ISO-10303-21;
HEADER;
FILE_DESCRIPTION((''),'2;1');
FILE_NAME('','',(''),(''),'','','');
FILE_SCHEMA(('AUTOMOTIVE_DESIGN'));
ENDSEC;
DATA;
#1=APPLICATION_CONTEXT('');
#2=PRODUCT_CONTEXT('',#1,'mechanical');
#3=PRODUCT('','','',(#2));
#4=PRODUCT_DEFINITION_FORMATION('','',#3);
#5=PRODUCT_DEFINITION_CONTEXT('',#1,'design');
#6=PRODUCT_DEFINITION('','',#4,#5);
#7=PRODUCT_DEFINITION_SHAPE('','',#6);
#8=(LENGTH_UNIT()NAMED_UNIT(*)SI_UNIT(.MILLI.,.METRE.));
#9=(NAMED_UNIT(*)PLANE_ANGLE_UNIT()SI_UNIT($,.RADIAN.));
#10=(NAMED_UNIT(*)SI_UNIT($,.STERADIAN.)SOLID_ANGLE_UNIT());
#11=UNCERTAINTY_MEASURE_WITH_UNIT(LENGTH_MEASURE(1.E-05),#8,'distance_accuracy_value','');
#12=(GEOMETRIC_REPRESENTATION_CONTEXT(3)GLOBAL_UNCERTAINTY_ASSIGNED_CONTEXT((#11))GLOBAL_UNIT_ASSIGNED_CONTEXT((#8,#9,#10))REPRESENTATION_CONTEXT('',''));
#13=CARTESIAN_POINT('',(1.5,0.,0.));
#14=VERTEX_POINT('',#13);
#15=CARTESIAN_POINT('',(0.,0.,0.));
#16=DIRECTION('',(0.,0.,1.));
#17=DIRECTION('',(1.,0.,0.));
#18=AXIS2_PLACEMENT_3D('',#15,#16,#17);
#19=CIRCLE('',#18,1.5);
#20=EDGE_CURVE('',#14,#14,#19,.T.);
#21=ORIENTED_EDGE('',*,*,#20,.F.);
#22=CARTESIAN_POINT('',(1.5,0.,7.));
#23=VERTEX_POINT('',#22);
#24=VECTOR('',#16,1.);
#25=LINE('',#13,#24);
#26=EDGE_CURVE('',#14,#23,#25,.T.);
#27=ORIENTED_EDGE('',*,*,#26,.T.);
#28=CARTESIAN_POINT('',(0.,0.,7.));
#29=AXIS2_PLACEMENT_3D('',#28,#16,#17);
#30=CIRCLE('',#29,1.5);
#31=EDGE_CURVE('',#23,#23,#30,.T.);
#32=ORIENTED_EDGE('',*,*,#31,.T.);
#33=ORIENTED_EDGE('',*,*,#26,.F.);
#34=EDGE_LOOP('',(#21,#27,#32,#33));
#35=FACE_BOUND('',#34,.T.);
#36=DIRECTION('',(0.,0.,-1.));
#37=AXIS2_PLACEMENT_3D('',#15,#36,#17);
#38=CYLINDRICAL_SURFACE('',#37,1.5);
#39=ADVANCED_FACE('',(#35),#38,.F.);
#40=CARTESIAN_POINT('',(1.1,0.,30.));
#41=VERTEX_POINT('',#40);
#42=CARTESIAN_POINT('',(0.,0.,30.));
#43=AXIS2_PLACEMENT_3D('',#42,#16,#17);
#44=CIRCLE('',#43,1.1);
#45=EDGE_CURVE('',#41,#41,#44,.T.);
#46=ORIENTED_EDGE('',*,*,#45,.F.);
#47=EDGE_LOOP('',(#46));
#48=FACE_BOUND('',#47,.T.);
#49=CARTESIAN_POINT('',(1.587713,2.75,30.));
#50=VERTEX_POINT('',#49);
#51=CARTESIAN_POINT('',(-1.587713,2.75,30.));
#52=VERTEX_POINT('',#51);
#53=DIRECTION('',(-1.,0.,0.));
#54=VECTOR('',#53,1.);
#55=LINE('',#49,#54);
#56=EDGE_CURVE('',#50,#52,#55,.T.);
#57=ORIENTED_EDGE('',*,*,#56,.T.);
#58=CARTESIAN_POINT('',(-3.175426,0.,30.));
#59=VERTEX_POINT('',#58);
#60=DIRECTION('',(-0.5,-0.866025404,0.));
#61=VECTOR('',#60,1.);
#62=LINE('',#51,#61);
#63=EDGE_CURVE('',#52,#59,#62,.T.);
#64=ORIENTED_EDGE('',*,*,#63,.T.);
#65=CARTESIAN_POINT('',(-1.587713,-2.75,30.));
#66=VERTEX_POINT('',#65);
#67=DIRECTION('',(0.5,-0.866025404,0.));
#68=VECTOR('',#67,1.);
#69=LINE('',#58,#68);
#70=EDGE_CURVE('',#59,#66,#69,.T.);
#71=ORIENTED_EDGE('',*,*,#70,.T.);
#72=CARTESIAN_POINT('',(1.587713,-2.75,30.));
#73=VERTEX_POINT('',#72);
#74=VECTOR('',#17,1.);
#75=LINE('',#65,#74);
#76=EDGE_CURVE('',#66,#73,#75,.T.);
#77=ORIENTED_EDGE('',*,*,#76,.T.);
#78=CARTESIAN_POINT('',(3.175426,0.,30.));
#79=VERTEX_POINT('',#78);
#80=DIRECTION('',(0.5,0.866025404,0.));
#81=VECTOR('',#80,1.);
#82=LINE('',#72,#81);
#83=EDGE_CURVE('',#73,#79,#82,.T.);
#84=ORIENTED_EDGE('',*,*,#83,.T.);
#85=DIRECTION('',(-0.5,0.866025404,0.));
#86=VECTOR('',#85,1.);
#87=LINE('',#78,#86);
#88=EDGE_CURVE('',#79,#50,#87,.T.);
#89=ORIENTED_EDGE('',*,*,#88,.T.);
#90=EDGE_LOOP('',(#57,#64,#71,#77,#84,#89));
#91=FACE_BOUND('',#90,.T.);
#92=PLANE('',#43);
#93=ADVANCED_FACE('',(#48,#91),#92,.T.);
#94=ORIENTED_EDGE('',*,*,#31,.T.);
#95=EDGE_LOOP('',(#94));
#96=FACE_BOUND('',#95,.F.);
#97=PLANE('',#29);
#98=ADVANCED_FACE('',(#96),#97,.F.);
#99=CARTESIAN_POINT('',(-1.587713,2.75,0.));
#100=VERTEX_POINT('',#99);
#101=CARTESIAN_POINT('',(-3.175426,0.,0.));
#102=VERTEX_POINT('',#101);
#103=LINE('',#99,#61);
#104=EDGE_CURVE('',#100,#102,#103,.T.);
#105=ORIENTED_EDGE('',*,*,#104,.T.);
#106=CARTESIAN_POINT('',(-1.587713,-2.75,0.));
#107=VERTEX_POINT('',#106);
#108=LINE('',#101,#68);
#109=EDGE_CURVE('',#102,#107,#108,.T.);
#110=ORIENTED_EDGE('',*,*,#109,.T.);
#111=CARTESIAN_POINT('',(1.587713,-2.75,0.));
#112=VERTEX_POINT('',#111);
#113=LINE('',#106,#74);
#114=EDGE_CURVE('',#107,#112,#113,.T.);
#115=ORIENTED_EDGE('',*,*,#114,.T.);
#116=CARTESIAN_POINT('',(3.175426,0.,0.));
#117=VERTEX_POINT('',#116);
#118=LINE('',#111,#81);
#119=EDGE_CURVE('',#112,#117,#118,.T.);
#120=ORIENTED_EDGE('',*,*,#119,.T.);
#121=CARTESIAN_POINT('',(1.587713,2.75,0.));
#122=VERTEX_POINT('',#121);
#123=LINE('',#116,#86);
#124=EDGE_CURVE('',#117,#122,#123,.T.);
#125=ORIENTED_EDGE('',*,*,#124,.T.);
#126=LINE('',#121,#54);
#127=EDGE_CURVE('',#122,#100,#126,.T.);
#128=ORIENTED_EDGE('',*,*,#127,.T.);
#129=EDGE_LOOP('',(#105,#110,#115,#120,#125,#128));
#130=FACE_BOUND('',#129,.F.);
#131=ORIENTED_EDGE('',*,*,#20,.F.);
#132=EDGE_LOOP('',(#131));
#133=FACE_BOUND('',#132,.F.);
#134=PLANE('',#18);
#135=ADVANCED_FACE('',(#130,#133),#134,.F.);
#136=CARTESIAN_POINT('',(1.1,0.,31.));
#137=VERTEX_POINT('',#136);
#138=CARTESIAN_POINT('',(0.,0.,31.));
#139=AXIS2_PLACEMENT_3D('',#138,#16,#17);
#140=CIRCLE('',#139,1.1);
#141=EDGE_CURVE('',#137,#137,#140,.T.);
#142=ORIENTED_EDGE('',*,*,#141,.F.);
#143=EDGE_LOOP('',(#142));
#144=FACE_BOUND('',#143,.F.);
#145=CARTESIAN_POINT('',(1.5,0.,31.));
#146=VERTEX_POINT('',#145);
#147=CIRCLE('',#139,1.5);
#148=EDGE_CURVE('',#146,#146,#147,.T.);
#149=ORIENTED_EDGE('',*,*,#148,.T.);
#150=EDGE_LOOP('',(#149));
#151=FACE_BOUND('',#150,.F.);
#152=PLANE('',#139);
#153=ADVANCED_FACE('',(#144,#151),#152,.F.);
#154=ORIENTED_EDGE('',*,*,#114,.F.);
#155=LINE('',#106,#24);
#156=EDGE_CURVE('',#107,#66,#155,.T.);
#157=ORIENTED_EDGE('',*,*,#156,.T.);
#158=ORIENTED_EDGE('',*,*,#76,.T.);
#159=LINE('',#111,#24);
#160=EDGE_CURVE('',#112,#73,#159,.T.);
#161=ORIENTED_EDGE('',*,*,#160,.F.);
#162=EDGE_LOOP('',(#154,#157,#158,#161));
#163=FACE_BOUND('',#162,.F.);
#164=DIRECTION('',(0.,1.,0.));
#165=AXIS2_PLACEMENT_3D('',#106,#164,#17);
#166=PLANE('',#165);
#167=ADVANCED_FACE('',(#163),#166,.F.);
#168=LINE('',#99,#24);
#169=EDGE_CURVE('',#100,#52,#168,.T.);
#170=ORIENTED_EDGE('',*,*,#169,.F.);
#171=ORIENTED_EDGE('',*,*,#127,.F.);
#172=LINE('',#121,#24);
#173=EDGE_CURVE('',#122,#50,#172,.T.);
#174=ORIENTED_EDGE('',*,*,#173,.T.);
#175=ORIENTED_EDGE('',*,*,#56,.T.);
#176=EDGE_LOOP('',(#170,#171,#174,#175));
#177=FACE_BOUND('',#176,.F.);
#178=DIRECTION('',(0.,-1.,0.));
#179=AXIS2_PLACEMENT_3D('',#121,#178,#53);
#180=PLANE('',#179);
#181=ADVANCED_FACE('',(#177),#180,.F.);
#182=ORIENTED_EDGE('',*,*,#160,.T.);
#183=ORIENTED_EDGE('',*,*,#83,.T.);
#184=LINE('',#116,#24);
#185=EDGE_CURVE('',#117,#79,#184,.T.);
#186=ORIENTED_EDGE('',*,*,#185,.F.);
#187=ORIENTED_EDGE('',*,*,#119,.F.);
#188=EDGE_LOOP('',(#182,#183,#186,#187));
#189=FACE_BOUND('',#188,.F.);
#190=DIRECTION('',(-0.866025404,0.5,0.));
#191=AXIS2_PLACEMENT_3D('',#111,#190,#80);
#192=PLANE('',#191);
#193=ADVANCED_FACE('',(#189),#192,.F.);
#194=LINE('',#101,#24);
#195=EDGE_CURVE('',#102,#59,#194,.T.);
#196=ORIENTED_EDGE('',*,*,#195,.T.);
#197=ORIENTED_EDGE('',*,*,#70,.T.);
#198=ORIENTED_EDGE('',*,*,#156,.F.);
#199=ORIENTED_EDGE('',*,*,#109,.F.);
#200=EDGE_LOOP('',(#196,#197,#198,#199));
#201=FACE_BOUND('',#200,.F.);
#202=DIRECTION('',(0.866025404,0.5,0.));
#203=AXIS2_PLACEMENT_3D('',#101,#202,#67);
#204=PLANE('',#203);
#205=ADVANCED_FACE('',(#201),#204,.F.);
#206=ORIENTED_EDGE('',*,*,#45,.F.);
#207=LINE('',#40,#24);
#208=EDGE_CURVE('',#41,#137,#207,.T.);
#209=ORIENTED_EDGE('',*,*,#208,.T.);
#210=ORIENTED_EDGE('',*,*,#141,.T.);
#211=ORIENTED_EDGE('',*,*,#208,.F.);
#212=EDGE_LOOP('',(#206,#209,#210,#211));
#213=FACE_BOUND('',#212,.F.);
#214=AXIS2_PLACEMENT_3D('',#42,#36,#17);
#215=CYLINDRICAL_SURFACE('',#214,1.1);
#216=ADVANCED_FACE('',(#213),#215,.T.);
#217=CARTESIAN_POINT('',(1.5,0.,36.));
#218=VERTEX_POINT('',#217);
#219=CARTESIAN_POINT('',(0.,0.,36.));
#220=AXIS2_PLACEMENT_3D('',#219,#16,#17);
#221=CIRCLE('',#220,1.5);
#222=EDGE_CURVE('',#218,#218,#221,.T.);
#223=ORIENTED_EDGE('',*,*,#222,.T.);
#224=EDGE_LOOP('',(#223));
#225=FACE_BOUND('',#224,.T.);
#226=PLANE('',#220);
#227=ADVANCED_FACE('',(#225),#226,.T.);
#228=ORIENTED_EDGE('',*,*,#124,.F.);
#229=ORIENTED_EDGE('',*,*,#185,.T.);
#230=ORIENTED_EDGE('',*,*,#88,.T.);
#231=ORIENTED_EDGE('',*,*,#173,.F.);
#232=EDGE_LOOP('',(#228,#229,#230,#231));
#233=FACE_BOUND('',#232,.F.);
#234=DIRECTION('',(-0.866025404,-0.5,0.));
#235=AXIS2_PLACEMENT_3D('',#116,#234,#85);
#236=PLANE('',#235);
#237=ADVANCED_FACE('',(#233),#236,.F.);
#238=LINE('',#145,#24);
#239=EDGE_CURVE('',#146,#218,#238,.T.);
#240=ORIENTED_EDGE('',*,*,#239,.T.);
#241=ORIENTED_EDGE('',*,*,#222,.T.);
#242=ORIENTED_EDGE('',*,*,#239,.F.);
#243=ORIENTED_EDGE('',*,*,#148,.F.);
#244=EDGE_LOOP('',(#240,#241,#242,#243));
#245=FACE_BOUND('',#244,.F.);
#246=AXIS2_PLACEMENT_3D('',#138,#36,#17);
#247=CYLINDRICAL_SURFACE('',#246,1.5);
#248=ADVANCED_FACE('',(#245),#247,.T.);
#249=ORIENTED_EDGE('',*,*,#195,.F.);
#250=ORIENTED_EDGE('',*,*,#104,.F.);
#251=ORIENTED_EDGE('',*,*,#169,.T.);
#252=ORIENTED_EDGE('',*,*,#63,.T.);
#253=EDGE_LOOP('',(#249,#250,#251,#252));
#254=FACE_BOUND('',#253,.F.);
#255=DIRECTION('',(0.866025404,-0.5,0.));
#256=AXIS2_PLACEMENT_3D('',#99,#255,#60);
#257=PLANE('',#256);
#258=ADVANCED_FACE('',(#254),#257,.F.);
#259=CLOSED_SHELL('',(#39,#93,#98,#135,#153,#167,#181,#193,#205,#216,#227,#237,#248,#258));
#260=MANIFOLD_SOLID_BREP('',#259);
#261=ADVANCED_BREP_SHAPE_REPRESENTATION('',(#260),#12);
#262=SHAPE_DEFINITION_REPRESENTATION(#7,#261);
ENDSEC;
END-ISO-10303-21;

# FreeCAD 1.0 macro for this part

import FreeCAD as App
import Part
import Sketcher
Q = App.Units.Quantity

doc = App.newDocument("Part")
body = doc.addObject("PartDesign::Body", "Body")

sketch1 = doc.addObject("Sketcher::SketchObject", "Sketch")
body.addObject(sketch1)
sketch1.AttachmentSupport = (doc.XY_Plane, [""])
sketch1.MapMode = "FlatFace"
sketch1.addGeometry([
    Part.LineSegment(App.Vector(1.6, 2.8, 0), App.Vector(-1.6, 2.8, 0)),
    Part.LineSegment(App.Vector(-1.6, 2.8, 0), App.Vector(-3.2, 0, 0)),
    Part.LineSegment(App.Vector(-3.2, 0, 0), App.Vector(-1.6, -2.8, 0)),
    Part.LineSegment(App.Vector(-1.6, -2.8, 0), App.Vector(1.6, -2.8, 0)),
    Part.LineSegment(App.Vector(1.6, -2.8, 0), App.Vector(3.2, 0, 0)),
    Part.LineSegment(App.Vector(3.2, 0, 0), App.Vector(1.6, 2.8, 0)),
], False)
sketch1.addConstraint([
    Sketcher.Constraint("Coincident", 0, 2, 1, 1),
    Sketcher.Constraint("Coincident", 1, 2, 2, 1),
    Sketcher.Constraint("Coincident", 2, 2, 3, 1),
    Sketcher.Constraint("Coincident", 3, 2, 4, 1),
    Sketcher.Constraint("Coincident", 4, 2, 5, 1),
    Sketcher.Constraint("Coincident", 5, 2, 0, 1),
    Sketcher.Constraint("Horizontal", 0),
    Sketcher.Constraint("Horizontal", 3),
    Sketcher.Constraint("Symmetric", 0, 2, 3, 2, -1, 1),
    Sketcher.Constraint("Symmetric", 1, 2, 4, 2, -1, 1),
    Sketcher.Constraint("PointOnObject", 1, 2, -1),
    Sketcher.Constraint("Parallel", 2, 5),
    Sketcher.Constraint("Vertical", 0, 2, 2, 2),
    Sketcher.Constraint("Angle", 1, Q("-120 deg")),
    Sketcher.Constraint("DistanceY", 2, 2, 0, 2, Q("5.5 mm")),
    Sketcher.Constraint("DistanceX", 0, 2, 0, 1, Q("3.175426 mm")),
])
pad1 = doc.addObject("PartDesign::Pad", "Pad")
body.addObject(pad1)
pad1.Profile = sketch1
pad1.Length = 30

sketch2 = doc.addObject("Sketcher::SketchObject", "Sketch001")
body.addObject(sketch2)
sketch2.AttachmentSupport = (doc.XY_Plane, [""])
sketch2.MapMode = "FlatFace"
sketch2.AttachmentOffset = App.Placement(App.Vector(0, 0, 30), App.Rotation())
sketch2.addGeometry(Part.Circle(App.Vector(0, 0, 0), App.Vector(0, 0, 1), 1.1), False)
sketch2.addConstraint([
    Sketcher.Constraint("Coincident", 0, 3, -1, 1),
    Sketcher.Constraint("Diameter", 0, Q("2.2 mm")),
])
pad2 = doc.addObject("PartDesign::Pad", "Pad001")
body.addObject(pad2)
pad2.Profile = sketch2
pad2.Length = 1

sketch3 = doc.addObject("Sketcher::SketchObject", "Sketch002")
body.addObject(sketch3)
sketch3.AttachmentSupport = (doc.XY_Plane, [""])
sketch3.MapMode = "FlatFace"
sketch3.AttachmentOffset = App.Placement(App.Vector(0, 0, 31), App.Rotation())
sketch3.addGeometry(Part.Circle(App.Vector(0, 0, 0), App.Vector(0, 0, 1), 1.5), False)
sketch3.addConstraint([
    Sketcher.Constraint("Coincident", 0, 3, -1, 1),
    Sketcher.Constraint("Diameter", 0, Q("3 mm")),
])
pad3 = doc.addObject("PartDesign::Pad", "Pad002")
body.addObject(pad3)
pad3.Profile = sketch3
pad3.Length = 5

sketch4 = doc.addObject("Sketcher::SketchObject", "Sketch003")
body.addObject(sketch4)
sketch4.AttachmentSupport = (doc.XY_Plane, [""])
sketch4.MapMode = "FlatFace"
sketch4.addGeometry(Part.Circle(App.Vector(0, 0, 0), App.Vector(0, 0, 1), 1.5), False)
sketch4.addConstraint([
    Sketcher.Constraint("Coincident", 0, 3, -1, 1),
    Sketcher.Constraint("Diameter", 0, Q("3 mm")),
])
pocket1 = doc.addObject("PartDesign::Pocket", "Pocket")
body.addObject(pocket1)
pocket1.Profile = sketch4
pocket1.Length = 7
pocket1.Reversed = True

doc.recompute()
